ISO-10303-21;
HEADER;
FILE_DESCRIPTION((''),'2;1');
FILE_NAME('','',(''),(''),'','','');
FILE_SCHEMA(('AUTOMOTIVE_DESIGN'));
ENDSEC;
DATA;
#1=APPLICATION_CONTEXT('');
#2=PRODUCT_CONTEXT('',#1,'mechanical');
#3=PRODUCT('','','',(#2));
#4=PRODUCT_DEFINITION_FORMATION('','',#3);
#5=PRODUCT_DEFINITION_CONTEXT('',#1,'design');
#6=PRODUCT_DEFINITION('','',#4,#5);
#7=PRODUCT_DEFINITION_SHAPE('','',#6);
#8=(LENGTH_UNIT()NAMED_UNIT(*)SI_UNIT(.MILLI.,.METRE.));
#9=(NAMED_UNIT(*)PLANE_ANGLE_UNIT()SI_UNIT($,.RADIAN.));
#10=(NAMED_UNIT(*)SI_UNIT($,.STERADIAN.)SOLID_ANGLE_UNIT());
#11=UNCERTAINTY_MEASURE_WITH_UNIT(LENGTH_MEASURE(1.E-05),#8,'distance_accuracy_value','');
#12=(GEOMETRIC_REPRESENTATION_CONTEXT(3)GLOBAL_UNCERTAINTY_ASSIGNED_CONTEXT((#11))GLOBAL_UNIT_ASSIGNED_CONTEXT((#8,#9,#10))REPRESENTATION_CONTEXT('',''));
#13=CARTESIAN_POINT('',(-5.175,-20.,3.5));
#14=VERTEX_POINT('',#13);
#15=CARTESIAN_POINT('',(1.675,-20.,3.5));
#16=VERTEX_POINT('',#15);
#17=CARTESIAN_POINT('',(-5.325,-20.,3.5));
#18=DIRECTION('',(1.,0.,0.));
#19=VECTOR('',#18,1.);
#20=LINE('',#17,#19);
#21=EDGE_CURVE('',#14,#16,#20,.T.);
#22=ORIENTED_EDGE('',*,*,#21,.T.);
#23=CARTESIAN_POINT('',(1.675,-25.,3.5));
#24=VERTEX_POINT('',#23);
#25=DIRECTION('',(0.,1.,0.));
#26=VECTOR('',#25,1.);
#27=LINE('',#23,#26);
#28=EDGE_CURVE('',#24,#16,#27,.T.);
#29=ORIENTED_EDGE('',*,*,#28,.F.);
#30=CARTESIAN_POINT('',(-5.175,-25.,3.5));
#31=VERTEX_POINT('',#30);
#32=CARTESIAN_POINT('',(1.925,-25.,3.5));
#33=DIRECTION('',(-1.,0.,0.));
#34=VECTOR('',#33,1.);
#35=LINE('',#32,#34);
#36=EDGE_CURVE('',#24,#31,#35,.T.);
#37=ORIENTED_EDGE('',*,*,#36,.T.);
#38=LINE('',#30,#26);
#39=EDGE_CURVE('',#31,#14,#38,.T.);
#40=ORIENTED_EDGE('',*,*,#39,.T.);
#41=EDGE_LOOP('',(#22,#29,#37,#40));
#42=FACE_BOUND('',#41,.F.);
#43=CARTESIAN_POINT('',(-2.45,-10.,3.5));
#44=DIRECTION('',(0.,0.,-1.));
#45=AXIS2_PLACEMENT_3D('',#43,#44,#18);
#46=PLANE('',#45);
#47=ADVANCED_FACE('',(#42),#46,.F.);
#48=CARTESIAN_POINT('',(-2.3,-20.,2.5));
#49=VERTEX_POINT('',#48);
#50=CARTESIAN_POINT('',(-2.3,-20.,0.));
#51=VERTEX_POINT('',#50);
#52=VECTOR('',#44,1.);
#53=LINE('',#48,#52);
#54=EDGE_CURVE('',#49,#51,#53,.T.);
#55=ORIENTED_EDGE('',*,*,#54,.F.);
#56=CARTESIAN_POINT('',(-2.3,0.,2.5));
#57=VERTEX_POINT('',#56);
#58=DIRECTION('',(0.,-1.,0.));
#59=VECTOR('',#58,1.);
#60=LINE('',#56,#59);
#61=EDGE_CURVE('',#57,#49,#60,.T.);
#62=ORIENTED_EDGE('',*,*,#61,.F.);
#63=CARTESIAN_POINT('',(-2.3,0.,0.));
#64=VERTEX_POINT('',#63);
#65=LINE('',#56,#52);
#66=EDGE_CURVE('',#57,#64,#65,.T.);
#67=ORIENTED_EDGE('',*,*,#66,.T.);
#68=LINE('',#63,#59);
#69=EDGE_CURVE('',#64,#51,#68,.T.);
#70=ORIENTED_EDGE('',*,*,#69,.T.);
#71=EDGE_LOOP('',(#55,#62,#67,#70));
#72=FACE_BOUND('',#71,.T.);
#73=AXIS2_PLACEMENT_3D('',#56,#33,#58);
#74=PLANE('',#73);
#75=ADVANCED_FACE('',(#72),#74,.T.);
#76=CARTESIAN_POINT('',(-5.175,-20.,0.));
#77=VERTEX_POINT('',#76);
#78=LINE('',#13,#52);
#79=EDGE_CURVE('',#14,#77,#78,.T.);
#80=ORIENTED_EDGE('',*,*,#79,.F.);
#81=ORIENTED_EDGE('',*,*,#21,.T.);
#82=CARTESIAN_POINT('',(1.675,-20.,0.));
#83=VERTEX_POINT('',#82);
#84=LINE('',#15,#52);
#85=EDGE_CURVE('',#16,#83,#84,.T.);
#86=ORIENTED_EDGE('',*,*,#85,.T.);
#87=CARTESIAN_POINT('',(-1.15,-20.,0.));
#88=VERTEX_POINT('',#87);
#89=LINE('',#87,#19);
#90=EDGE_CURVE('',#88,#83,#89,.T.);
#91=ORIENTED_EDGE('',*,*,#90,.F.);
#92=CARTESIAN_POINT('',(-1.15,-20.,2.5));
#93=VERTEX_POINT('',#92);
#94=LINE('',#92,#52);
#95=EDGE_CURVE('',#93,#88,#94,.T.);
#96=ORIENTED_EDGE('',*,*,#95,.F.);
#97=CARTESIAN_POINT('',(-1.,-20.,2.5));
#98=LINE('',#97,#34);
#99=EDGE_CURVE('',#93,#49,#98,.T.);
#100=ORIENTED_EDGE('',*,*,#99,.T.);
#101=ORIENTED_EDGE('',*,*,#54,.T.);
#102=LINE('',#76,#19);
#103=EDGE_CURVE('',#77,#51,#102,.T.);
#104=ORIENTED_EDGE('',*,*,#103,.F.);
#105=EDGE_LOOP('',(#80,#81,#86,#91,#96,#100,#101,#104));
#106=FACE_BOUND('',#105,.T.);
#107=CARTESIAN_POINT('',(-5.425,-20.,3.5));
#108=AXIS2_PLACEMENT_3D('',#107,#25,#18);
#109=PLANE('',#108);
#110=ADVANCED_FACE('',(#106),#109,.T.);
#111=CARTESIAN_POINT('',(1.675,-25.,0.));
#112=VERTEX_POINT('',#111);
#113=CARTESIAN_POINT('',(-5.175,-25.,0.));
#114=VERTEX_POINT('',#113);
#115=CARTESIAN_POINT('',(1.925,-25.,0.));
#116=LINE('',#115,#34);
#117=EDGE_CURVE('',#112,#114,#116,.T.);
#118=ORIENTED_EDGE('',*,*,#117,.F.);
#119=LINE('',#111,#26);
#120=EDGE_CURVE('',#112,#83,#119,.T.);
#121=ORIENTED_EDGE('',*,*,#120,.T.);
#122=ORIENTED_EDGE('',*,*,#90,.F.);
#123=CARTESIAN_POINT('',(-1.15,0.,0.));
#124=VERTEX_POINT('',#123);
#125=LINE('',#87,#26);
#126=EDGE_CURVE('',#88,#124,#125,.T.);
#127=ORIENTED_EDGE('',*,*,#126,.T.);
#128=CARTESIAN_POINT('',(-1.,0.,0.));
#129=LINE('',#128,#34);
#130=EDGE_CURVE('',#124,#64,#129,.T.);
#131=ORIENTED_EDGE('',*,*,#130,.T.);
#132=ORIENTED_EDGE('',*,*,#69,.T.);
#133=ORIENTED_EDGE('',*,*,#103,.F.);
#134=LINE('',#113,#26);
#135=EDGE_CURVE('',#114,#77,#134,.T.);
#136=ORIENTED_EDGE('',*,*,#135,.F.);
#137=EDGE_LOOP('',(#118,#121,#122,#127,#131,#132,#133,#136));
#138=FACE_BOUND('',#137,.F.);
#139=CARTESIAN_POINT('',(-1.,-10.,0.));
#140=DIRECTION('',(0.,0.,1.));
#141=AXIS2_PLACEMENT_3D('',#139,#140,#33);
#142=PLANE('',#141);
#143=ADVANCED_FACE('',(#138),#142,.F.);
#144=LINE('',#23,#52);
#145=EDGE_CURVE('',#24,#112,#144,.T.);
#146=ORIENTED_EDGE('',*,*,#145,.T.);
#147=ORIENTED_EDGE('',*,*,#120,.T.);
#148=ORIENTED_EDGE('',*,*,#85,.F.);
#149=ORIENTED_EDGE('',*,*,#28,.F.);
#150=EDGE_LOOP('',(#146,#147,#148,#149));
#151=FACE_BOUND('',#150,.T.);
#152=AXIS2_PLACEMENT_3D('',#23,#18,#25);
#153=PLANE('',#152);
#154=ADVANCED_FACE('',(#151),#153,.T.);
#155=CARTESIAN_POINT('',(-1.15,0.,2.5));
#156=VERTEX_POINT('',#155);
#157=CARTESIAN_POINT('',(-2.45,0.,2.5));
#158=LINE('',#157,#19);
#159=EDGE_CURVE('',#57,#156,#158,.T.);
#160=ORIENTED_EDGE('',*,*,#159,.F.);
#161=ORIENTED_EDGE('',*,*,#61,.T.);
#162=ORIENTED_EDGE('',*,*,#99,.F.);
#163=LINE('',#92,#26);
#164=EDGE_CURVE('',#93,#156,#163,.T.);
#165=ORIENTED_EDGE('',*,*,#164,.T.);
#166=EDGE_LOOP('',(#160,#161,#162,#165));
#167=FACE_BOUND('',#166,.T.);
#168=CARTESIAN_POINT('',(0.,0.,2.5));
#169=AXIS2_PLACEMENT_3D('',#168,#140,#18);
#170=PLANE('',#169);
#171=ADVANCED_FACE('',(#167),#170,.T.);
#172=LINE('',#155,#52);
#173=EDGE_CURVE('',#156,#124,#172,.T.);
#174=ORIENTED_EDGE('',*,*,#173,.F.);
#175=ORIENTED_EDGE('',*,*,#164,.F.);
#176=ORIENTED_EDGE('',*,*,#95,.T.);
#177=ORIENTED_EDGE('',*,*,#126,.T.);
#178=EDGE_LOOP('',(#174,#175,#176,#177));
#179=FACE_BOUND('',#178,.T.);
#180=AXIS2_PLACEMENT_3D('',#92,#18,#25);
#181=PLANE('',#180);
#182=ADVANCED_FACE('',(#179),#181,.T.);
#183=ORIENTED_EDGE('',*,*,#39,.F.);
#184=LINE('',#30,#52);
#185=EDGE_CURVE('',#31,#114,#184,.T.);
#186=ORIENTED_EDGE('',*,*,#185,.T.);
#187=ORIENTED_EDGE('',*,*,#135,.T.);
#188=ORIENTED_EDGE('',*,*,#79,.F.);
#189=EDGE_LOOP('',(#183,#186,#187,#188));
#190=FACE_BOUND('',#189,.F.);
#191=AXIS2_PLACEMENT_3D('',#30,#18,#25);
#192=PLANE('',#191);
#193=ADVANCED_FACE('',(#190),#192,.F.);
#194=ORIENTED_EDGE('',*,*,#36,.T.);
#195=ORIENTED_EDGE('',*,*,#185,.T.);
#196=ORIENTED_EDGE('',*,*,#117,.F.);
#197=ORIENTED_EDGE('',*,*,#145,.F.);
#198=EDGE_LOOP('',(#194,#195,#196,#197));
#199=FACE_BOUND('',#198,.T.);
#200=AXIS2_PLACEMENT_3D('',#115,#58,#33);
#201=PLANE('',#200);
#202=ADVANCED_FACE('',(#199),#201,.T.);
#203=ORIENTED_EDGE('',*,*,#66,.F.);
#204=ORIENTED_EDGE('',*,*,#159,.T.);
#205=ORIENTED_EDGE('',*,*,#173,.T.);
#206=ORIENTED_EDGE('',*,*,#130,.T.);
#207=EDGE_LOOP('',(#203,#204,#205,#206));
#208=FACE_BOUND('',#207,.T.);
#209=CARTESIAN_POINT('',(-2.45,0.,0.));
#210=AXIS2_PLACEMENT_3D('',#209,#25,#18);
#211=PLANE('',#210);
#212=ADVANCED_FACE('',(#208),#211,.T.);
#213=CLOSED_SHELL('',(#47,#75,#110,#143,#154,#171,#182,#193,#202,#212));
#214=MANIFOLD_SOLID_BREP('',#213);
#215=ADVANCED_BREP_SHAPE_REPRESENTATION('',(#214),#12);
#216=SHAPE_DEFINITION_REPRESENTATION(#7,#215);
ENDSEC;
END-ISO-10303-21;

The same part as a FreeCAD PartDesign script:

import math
import FreeCAD as App
import Part
import Sketcher

V = App.Vector
Q = App.Units.Quantity

doc = App.newDocument("Part")
body = doc.addObject("PartDesign::Body", "Body")

# Sketch on XY plane
sketch1 = doc.addObject("Sketcher::SketchObject", "Sketch")
body.addObject(sketch1)
sketch1.AttachmentSupport = (doc.XY_Plane, [""])
sketch1.MapMode = "FlatFace"
sketch1.addGeometry([
    Part.LineSegment(V(0, -20, 0), V(0, 0, 0)),  # 0
    Part.LineSegment(V(0, 0, 0), V(-3.5, 0, 0)),  # 1
    Part.LineSegment(V(-3.5, 0, 0), V(-3.5, -20, 0)),  # 2
    Part.LineSegment(V(-3.5, -20, 0), V(-5.4, -20, 0)),  # 3
    Part.LineSegment(V(-5.4, -20, 0), V(-5.4, -25, 0)),  # 4
    Part.LineSegment(V(-5.4, -25, 0), V(1.9, -25, 0)),  # 5
    Part.LineSegment(V(1.9, -25, 0), V(1.9, -20, 0)),  # 6
    Part.LineSegment(V(1.9, -20, 0), V(0, -20, 0)),  # 7
], False)
sketch1.addConstraint([
    Sketcher.Constraint("Coincident", 0, 2, 1, 1),
    Sketcher.Constraint("Coincident", 1, 2, 2, 1),
    Sketcher.Constraint("Coincident", 2, 2, 3, 1),
    Sketcher.Constraint("Coincident", 3, 2, 4, 1),
    Sketcher.Constraint("Coincident", 4, 2, 5, 1),
    Sketcher.Constraint("Coincident", 5, 2, 6, 1),
    Sketcher.Constraint("Coincident", 6, 2, 7, 1),
    Sketcher.Constraint("Coincident", 7, 2, 0, 1),
    Sketcher.Constraint("Vertical", 0),
    Sketcher.Constraint("Horizontal", 1),
    Sketcher.Constraint("Vertical", 2),
    Sketcher.Constraint("Horizontal", 3),
    Sketcher.Constraint("Vertical", 4),
    Sketcher.Constraint("Horizontal", 5),
    Sketcher.Constraint("Vertical", 6),
    Sketcher.Constraint("Horizontal", 7),
    Sketcher.Constraint("Coincident", 0, 2, -1, 1),
    Sketcher.Constraint("Horizontal", 3, 2, 6, 2),
    Sketcher.Constraint("DistanceY", 0, 1, 0, 2, Q("20 mm")),
    Sketcher.Constraint("DistanceY", 4, 2, 4, 1, Q("5 mm")),
    Sketcher.Constraint("DistanceX", 1, 2, 1, 1, Q("3.45 mm")),
    Sketcher.Constraint("DistanceX", 5, 1, 5, 2, Q("7.35 mm")),
    Sketcher.Constraint("DistanceX", 3, 2, 3, 1, Q("1.975 mm")),
])
pad1 = doc.addObject("PartDesign::Pad", "Pad")
body.addObject(pad1)
pad1.Profile = sketch1
pad1.Length = 3.5

# Sketch on XY plane
sketch2 = doc.addObject("Sketcher::SketchObject", "Sketch001")
body.addObject(sketch2)
sketch2.AttachmentSupport = (doc.XY_Plane, [""])
sketch2.MapMode = "FlatFace"
sketch2.addGeometry([
    Part.LineSegment(V(2, 0, 0), V(-5.5, 0, 0)),  # 0
    Part.LineSegment(V(-5.5, 0, 0), V(-5.5, 4, 0)),  # 1
    Part.ArcOfCircle(Part.Circle(V(-1.7, 4, 0), V(0, 0, 1), 3.8), math.radians(0), math.radians(180)),  # 2
    Part.LineSegment(V(2, 4, 0), V(2, 0, 0)),  # 3
    Part.Circle(V(-1.7, 4, 0), V(0, 0, 1), 1.6),  # 4
], False)
sketch2.addConstraint([
    Sketcher.Constraint("Coincident", 0, 2, 1, 1),
    Sketcher.Constraint("Tangent", 1, 2, 2, 2),
    Sketcher.Constraint("Tangent", 2, 1, 3, 1),
    Sketcher.Constraint("Coincident", 3, 2, 0, 1),
    Sketcher.Constraint("Horizontal", 0),
    Sketcher.Constraint("Vertical", 1),
    Sketcher.Constraint("Vertical", 3),
    Sketcher.Constraint("Coincident", 4, 3, 2, 3),
    Sketcher.Constraint("PointOnObject", 0, 2, -1),
    Sketcher.Constraint("Diameter", 4, Q("3.1 mm")),
    Sketcher.Constraint("DistanceY", 1, 1, 1, 2, Q("4 mm")),
    Sketcher.Constraint("Radius", 2, Q("3.75 mm")),
    Sketcher.Constraint("DistanceX", -1, 1, 2, 1, Q("2.025 mm")),
])
pad2 = doc.addObject("PartDesign::Pad", "Pad001")
body.addObject(pad2)
pad2.Profile = sketch2
pad2.Length = 3.5

# Sketch on XY plane
sketch3 = doc.addObject("Sketcher::SketchObject", "Sketch002")
body.addObject(sketch3)
sketch3.AttachmentSupport = (doc.XY_Plane, [""])
sketch3.MapMode = "FlatFace"
sketch3.addGeometry([
    Part.LineSegment(V(0, -20, 0), V(-1, -20, 0)),  # 0
    Part.LineSegment(V(-1, -20, 0), V(-1, -10, 0)),  # 1
    Part.LineSegment(V(-1, -10, 0), V(-2.5, -10, 0)),  # 2
    Part.LineSegment(V(-2.5, -10, 0), V(-2.5, -20, 0)),  # 3
    Part.LineSegment(V(-2.5, -20, 0), V(-3.5, -20, 0)),  # 4
    Part.LineSegment(V(-3.5, -20, 0), V(-3.5, 0, 0)),  # 5
    Part.LineSegment(V(-3.5, 0, 0), V(-5.5, 0, 0)),  # 6
    Part.LineSegment(V(-5.5, 0, 0), V(-5.5, 4, 0)),  # 7
    Part.ArcOfCircle(Part.Circle(V(-1.7, 4, 0), V(0, 0, 1), 3.7), math.radians(0), math.radians(180)),  # 8
    Part.LineSegment(V(2, 4, 0), V(2, 0, 0)),  # 9
    Part.LineSegment(V(2, 0, 0), V(0, 0, 0)),  # 10
    Part.LineSegment(V(0, 0, 0), V(0, -20, 0)),  # 11
    Part.Circle(V(-1.7, 4, 0), V(0, 0, 1), 1.6),  # 12
], False)
sketch3.addConstraint([
    Sketcher.Constraint("Coincident", 0, 2, 1, 1),
    Sketcher.Constraint("Coincident", 1, 2, 2, 1),
    Sketcher.Constraint("Coincident", 2, 2, 3, 1),
    Sketcher.Constraint("Coincident", 3, 2, 4, 1),
    Sketcher.Constraint("Coincident", 4, 2, 5, 1),
    Sketcher.Constraint("Coincident", 5, 2, 6, 1),
    Sketcher.Constraint("Coincident", 6, 2, 7, 1),
    Sketcher.Constraint("Tangent", 7, 2, 8, 2),
    Sketcher.Constraint("Tangent", 8, 1, 9, 1),
    Sketcher.Constraint("Coincident", 9, 2, 10, 1),
    Sketcher.Constraint("Coincident", 10, 2, 11, 1),
    Sketcher.Constraint("Coincident", 11, 2, 0, 1),
    Sketcher.Constraint("Horizontal", 0),
    Sketcher.Constraint("Vertical", 1),
    Sketcher.Constraint("Horizontal", 2),
    Sketcher.Constraint("Vertical", 3),
    Sketcher.Constraint("Horizontal", 4),
    Sketcher.Constraint("Vertical", 5),
    Sketcher.Constraint("Horizontal", 6),
    Sketcher.Constraint("Vertical", 7),
    Sketcher.Constraint("Vertical", 9),
    Sketcher.Constraint("Horizontal", 10),
    Sketcher.Constraint("Vertical", 11),
    Sketcher.Constraint("Coincident", 10, 2, -1, 1),
    Sketcher.Constraint("Coincident", 12, 3, 8, 3),
    Sketcher.Constraint("PointOnObject", 5, 2, -1),
    Sketcher.Constraint("Horizontal", 0, 2, 3, 2),
    Sketcher.Constraint("Equal", 0, 4),
    Sketcher.Constraint("Equal", 6, 10),
    Sketcher.Constraint("DistanceX", 0, 2, 0, 1, Q("1 mm")),
    Sketcher.Constraint("Diameter", 12, Q("3.1 mm")),
    Sketcher.Constraint("DistanceY", 1, 1, 1, 2, Q("10 mm")),
    Sketcher.Constraint("DistanceY", 5, 1, 5, 2, Q("20 mm")),
    Sketcher.Constraint("DistanceY", 7, 1, 7, 2, Q("4 mm")),
    Sketcher.Constraint("Radius", 8, Q("3.75 mm")),
    Sketcher.Constraint("DistanceX", 2, 2, 2, 1, Q("1.45 mm")),
])
pocket1 = doc.addObject("PartDesign::Pocket", "Pocket")
body.addObject(pocket1)
pocket1.Profile = sketch3
pocket1.Length = 3.5
pocket1.Reversed = True

# Sketch on XY plane
sketch4 = doc.addObject("Sketcher::SketchObject", "Sketch003")
body.addObject(sketch4)
sketch4.AttachmentSupport = (doc.XY_Plane, [""])
sketch4.MapMode = "FlatFace"
sketch4.AttachmentOffset = App.Placement(V(0, 0, 3.5), App.Rotation())
sketch4.addGeometry([
    Part.LineSegment(V(-2.5, -20, 0), V(-1, -20, 0)),
    Part.LineSegment(V(-1, -20, 0), V(-1, -10, 0)),
    Part.LineSegment(V(-1, -10, 0), V(-2.5, -10, 0)),
    Part.LineSegment(V(-2.5, -10, 0), V(-2.5, -20, 0)),
], False)
sketch4.addConstraint([
    Sketcher.Constraint("Coincident", 0, 2, 1, 1),
    Sketcher.Constraint("Coincident", 1, 2, 2, 1),
    Sketcher.Constraint("Coincident", 2, 2, 3, 1),
    Sketcher.Constraint("Coincident", 3, 2, 0, 1),
    Sketcher.Constraint("Horizontal", 0),
    Sketcher.Constraint("Vertical", 1),
    Sketcher.Constraint("Horizontal", 2),
    Sketcher.Constraint("Vertical", 3),
    Sketcher.Constraint("DistanceY", 1, 1, 1, 2, Q("10 mm")),
    Sketcher.Constraint("DistanceX", 0, 2, -1, 1, Q("1 mm")),
    Sketcher.Constraint("DistanceY", 0, 2, -1, 1, Q("20 mm")),
    Sketcher.Constraint("DistanceX", 0, 1, 0, 2, Q("1.45 mm")),
])
pocket2 = doc.addObject("PartDesign::Pocket", "Pocket001")
body.addObject(pocket2)
pocket2.Profile = sketch4
pocket2.Length = 1.75

# Sketch on XZ plane
sketch5 = doc.addObject("Sketcher::SketchObject", "Sketch004")
body.addObject(sketch5)
sketch5.AttachmentSupport = (doc.XZ_Plane, [""])
sketch5.MapMode = "FlatFace"
sketch5.AttachmentOffset = App.Placement(V(0, 0, 20), App.Rotation())
sketch5.addGeometry([
    Part.LineSegment(V(1.9, 0, 0), V(-5.4, 0, 0)),  # 0
    Part.LineSegment(V(-5.4, 0, 0), V(-5.4, 3.5, 0)),  # 1
    Part.LineSegment(V(-5.4, 3.5, 0), V(1.9, 3.5, 0)),  # 2
    Part.LineSegment(V(1.9, 3.5, 0), V(1.9, 0, 0)),  # 3
    Part.LineSegment(V(1.4, 0.5, 0), V(1.4, 3, 0)),  # 4
    Part.LineSegment(V(1.4, 3, 0), V(-4.9, 3, 0)),  # 5
    Part.LineSegment(V(-4.9, 3, 0), V(-4.9, 0.5, 0)),  # 6
    Part.LineSegment(V(-4.9, 0.5, 0), V(1.4, 0.5, 0)),  # 7
], False)
sketch5.addConstraint([
    Sketcher.Constraint("Coincident", 0, 2, 1, 1),
    Sketcher.Constraint("Coincident", 1, 2, 2, 1),
    Sketcher.Constraint("Coincident", 2, 2, 3, 1),
    Sketcher.Constraint("Coincident", 3, 2, 0, 1),
    Sketcher.Constraint("Coincident", 4, 2, 5, 1),
    Sketcher.Constraint("Coincident", 5, 2, 6, 1),
    Sketcher.Constraint("Coincident", 6, 2, 7, 1),
    Sketcher.Constraint("Coincident", 7, 2, 4, 1),
    Sketcher.Constraint("Horizontal", 0),
    Sketcher.Constraint("Vertical", 1),
    Sketcher.Constraint("Horizontal", 2),
    Sketcher.Constraint("Vertical", 3),
    Sketcher.Constraint("Vertical", 4),
    Sketcher.Constraint("Horizontal", 5),
    Sketcher.Constraint("Vertical", 6),
    Sketcher.Constraint("Horizontal", 7),
    Sketcher.Constraint("PointOnObject", 0, 2, -1),
    Sketcher.Constraint("DistanceY", -1, 1, 6, 2, Q("0.5 mm")),
    Sketcher.Constraint("DistanceX", 4, 2, 2, 2, Q("0.5 mm")),
    Sketcher.Constraint("DistanceY", 4, 2, 2, 2, Q("0.5 mm")),
    Sketcher.Constraint("DistanceX", 1, 2, 5, 2, Q("0.5 mm")),
    Sketcher.Constraint("DistanceY", 1, 1, 1, 2, Q("3.5 mm")),
    Sketcher.Constraint("DistanceX", 0, 2, 0, 1, Q("7.35 mm")),
    Sketcher.Constraint("DistanceX", 0, 2, -1, 1, Q("5.425 mm")),
])
pocket3 = doc.addObject("PartDesign::Pocket", "Pocket002")
body.addObject(pocket3)
pocket3.Profile = sketch5
pocket3.Type = "TwoLengths"
pocket3.Length = 10
pocket3.Length2 = 2

# Sketch on XZ plane
sketch6 = doc.addObject("Sketcher::SketchObject", "Sketch005")
body.addObject(sketch6)
sketch6.AttachmentSupport = (doc.XZ_Plane, [""])
sketch6.MapMode = "FlatFace"
sketch6.AttachmentOffset = App.Placement(V(0, 0, 22), App.Rotation())
sketch6.addGeometry([
    Part.LineSegment(V(1.9, 0, 0), V(-5.4, 0, 0)),  # 0
    Part.LineSegment(V(-5.4, 0, 0), V(-5.4, 3.5, 0)),  # 1
    Part.LineSegment(V(-5.4, 3.5, 0), V(1.9, 3.5, 0)),  # 2
    Part.LineSegment(V(1.9, 3.5, 0), V(1.9, 0, 0)),  # 3
    Part.LineSegment(V(-4.9, 0.5, 0), V(1.4, 0.5, 0)),  # 4
    Part.LineSegment(V(1.4, 0.5, 0), V(1.4, 3, 0)),  # 5
    Part.LineSegment(V(1.4, 3, 0), V(-4.9, 3, 0)),  # 6
    Part.LineSegment(V(-4.9, 3, 0), V(-4.9, 0.5, 0)),  # 7
], False)
sketch6.addConstraint([
    Sketcher.Constraint("Coincident", 0, 2, 1, 1),
    Sketcher.Constraint("Coincident", 1, 2, 2, 1),
    Sketcher.Constraint("Coincident", 2, 2, 3, 1),
    Sketcher.Constraint("Coincident", 3, 2, 0, 1),
    Sketcher.Constraint("Coincident", 4, 2, 5, 1),
    Sketcher.Constraint("Coincident", 5, 2, 6, 1),
    Sketcher.Constraint("Coincident", 6, 2, 7, 1),
    Sketcher.Constraint("Coincident", 7, 2, 4, 1),
    Sketcher.Constraint("Horizontal", 0),
    Sketcher.Constraint("Vertical", 1),
    Sketcher.Constraint("Horizontal", 2),
    Sketcher.Constraint("Vertical", 3),
    Sketcher.Constraint("Horizontal", 4),
    Sketcher.Constraint("Vertical", 5),
    Sketcher.Constraint("Horizontal", 6),
    Sketcher.Constraint("Vertical", 7),
    Sketcher.Constraint("PointOnObject", 0, 2, -1),
    Sketcher.Constraint("DistanceY", 1, 1, 1, 2, Q("3.5 mm")),
    Sketcher.Constraint("DistanceY", 5, 1, 5, 2, Q("2.5 mm")),
    Sketcher.Constraint("DistanceY", -1, 1, 5, 2, Q("3 mm")),
    Sketcher.Constraint("DistanceX", 0, 2, 0, 1, Q("7.35 mm")),
    Sketcher.Constraint("DistanceX", 4, 1, 4, 2, Q("6.35 mm")),
    Sketcher.Constraint("DistanceX", 4, 2, 3, 2, Q("0.5 mm")),
    Sketcher.Constraint("DistanceX", 0, 2, -1, 1, Q("5.425 mm")),
])
pad3 = doc.addObject("PartDesign::Pad", "Pad002")
body.addObject(pad3)
pad3.Profile = sketch6
pad3.Length = 2
pad3.Reversed = True

# Sketch on XZ plane
sketch7 = doc.addObject("Sketcher::SketchObject", "Sketch006")
body.addObject(sketch7)
sketch7.AttachmentSupport = (doc.XZ_Plane, [""])
sketch7.MapMode = "FlatFace"
sketch7.AttachmentOffset = App.Placement(V(0, 0, 20), App.Rotation())
sketch7.addGeometry([
    Part.LineSegment(V(-1, 0, 0), V(-2.5, 0, 0)),
    Part.LineSegment(V(-2.5, 0, 0), V(-2.5, 0.5, 0)),
    Part.LineSegment(V(-2.5, 0.5, 0), V(-1, 0.5, 0)),
    Part.LineSegment(V(-1, 0.5, 0), V(-1, 0, 0)),
], False)
sketch7.addConstraint([
    Sketcher.Constraint("Coincident", 0, 2, 1, 1),
    Sketcher.Constraint("Coincident", 1, 2, 2, 1),
    Sketcher.Constraint("Coincident", 2, 2, 3, 1),
    Sketcher.Constraint("Coincident", 3, 2, 0, 1),
    Sketcher.Constraint("Horizontal", 0),
    Sketcher.Constraint("Vertical", 1),
    Sketcher.Constraint("Horizontal", 2),
    Sketcher.Constraint("Vertical", 3),
    Sketcher.Constraint("PointOnObject", 0, 2, -1),
    Sketcher.Constraint("DistanceY", 1, 1, 1, 2, Q("0.5 mm")),
    Sketcher.Constraint("DistanceX", 2, 2, -1, 1, Q("1 mm")),
    Sketcher.Constraint("DistanceX", 0, 2, 0, 1, Q("1.45 mm")),
])
pad4 = doc.addObject("PartDesign::Pad", "Pad003")
body.addObject(pad4)
pad4.Profile = sketch7
pad4.Length = 10
pad4.Reversed = True

# Sketch on XY plane
sketch8 = doc.addObject("Sketcher::SketchObject", "Sketch007")
body.addObject(sketch8)
sketch8.AttachmentSupport = (doc.XY_Plane, [""])
sketch8.MapMode = "FlatFace"
sketch8.AttachmentOffset = App.Placement(V(0, 0, 1.75), App.Rotation())
sketch8.addGeometry([
    Part.LineSegment(V(-2.5, -20, 0), V(-1, -20, 0)),
    Part.LineSegment(V(-1, -20, 0), V(-1, -10, 0)),
    Part.LineSegment(V(-1, -10, 0), V(-2.5, -10, 0)),
    Part.LineSegment(V(-2.5, -10, 0), V(-2.5, -20, 0)),
], False)
sketch8.addConstraint([
    Sketcher.Constraint("Coincident", 0, 2, 1, 1),
    Sketcher.Constraint("Coincident", 1, 2, 2, 1),
    Sketcher.Constraint("Coincident", 2, 2, 3, 1),
    Sketcher.Constraint("Coincident", 3, 2, 0, 1),
    Sketcher.Constraint("Horizontal", 0),
    Sketcher.Constraint("Vertical", 1),
    Sketcher.Constraint("Horizontal", 2),
    Sketcher.Constraint("Vertical", 3),
    Sketcher.Constraint("DistanceY", 1, 1, 1, 2, Q("10 mm")),
    Sketcher.Constraint("DistanceX", 0, 2, -1, 1, Q("1 mm")),
    Sketcher.Constraint("DistanceY", 0, 2, -1, 1, Q("20 mm")),
    Sketcher.Constraint("DistanceX", 0, 1, 0, 2, Q("1.45 mm")),
])
pad5 = doc.addObject("PartDesign::Pad", "Pad004")
body.addObject(pad5)
pad5.Profile = sketch8
pad5.Length = 1.75

# Sketch on XZ plane
sketch9 = doc.addObject("Sketcher::SketchObject", "Sketch008")
body.addObject(sketch9)
sketch9.AttachmentSupport = (doc.XZ_Plane, [""])
sketch9.MapMode = "FlatFace"
sketch9.AttachmentOffset = App.Placement(V(0, 0, 10), App.Rotation())
sketch9.addGeometry([
    Part.LineSegment(V(-1, 0, 0), V(-2.5, 0, 0)),
    Part.LineSegment(V(-2.5, 0, 0), V(-2.5, 3.5, 0)),
    Part.LineSegment(V(-2.5, 3.5, 0), V(-1, 3.5, 0)),
    Part.LineSegment(V(-1, 3.5, 0), V(-1, 0, 0)),
], False)
sketch9.addConstraint([
    Sketcher.Constraint("Coincident", 0, 2, 1, 1),
    Sketcher.Constraint("Coincident", 1, 2, 2, 1),
    Sketcher.Constraint("Coincident", 2, 2, 3, 1),
    Sketcher.Constraint("Coincident", 3, 2, 0, 1),
    Sketcher.Constraint("Horizontal", 0),
    Sketcher.Constraint("Vertical", 1),
    Sketcher.Constraint("Horizontal", 2),
    Sketcher.Constraint("Vertical", 3),
    Sketcher.Constraint("PointOnObject", 0, 2, -1),
    Sketcher.Constraint("DistanceY", 1, 1, 1, 2, Q("3.5 mm")),
    Sketcher.Constraint("DistanceX", 2, 2, -1, 1, Q("1 mm")),
    Sketcher.Constraint("DistanceX", 0, 2, 0, 1, Q("1.45 mm")),
])
pad6 = doc.addObject("PartDesign::Pad", "Pad005")
body.addObject(pad6)
pad6.Profile = sketch9
pad6.Length = 10
pad6.Reversed = True

# Sketch on XY plane
sketch10 = doc.addObject("Sketcher::SketchObject", "Sketch009")
body.addObject(sketch10)
sketch10.AttachmentSupport = (doc.XY_Plane, [""])
sketch10.MapMode = "FlatFace"
sketch10.AttachmentOffset = App.Placement(V(0, 0, 3.5), App.Rotation())
sketch10.addGeometry([
    Part.LineSegment(V(-5.33, -20, 0), V(-5.42, -20, 0)),  # 0
    Part.LineSegment(V(-5.42, -20, 0), V(-5.42, -25, 0)),  # 1
    Part.LineSegment(V(-5.42, -25, 0), V(-5.33, -25, 0)),  # 2
    Part.LineSegment(V(-5.33, -25, 0), V(-5.33, -20, 0)),  # 3
    Part.LineSegment(V(1.82, -20, 0), V(1.82, -25, 0)),  # 4
    Part.LineSegment(V(1.82, -25, 0), V(1.93, -25, 0)),  # 5
    Part.LineSegment(V(1.93, -25, 0), V(1.93, -20, 0)),  # 6
    Part.LineSegment(V(1.93, -20, 0), V(1.82, -20, 0)),  # 7
], False)
sketch10.addConstraint([
    Sketcher.Constraint("Coincident", 0, 2, 1, 1),
    Sketcher.Constraint("Coincident", 1, 2, 2, 1),
    Sketcher.Constraint("Coincident", 2, 2, 3, 1),
    Sketcher.Constraint("Coincident", 3, 2, 0, 1),
    Sketcher.Constraint("Coincident", 4, 2, 5, 1),
    Sketcher.Constraint("Coincident", 5, 2, 6, 1),
    Sketcher.Constraint("Coincident", 6, 2, 7, 1),
    Sketcher.Constraint("Coincident", 7, 2, 4, 1),
    Sketcher.Constraint("Horizontal", 0),
    Sketcher.Constraint("Vertical", 1),
    Sketcher.Constraint("Horizontal", 2),
    Sketcher.Constraint("Vertical", 3),
    Sketcher.Constraint("Vertical", 4),
    Sketcher.Constraint("Horizontal", 5),
    Sketcher.Constraint("Vertical", 6),
    Sketcher.Constraint("Horizontal", 7),
    Sketcher.Constraint("Horizontal", 2, 2, 4, 2),
    Sketcher.Constraint("Horizontal", 3, 2, 6, 2),
    Sketcher.Constraint("Equal", 2, 5),
    Sketcher.Constraint("DistanceX", 0, 2, 0, 1, Q("0.1 mm")),
    Sketcher.Constraint("DistanceY", 1, 2, 1, 1, Q("5 mm")),
    Sketcher.Constraint("DistanceY", 0, 2, -1, 1, Q("20 mm")),
    Sketcher.Constraint("DistanceX", 2, 2, 4, 2, Q("7.15 mm")),
    Sketcher.Constraint("DistanceX", 0, 2, -1, 1, Q("5.425 mm")),
])
pocket4 = doc.addObject("PartDesign::Pocket", "Pocket003")
body.addObject(pocket4)
pocket4.Profile = sketch10
pocket4.Length = 3.5

# Sketch on XY plane
sketch11 = doc.addObject("Sketcher::SketchObject", "Sketch010")
body.addObject(sketch11)
sketch11.AttachmentSupport = (doc.XY_Plane, [""])
sketch11.MapMode = "FlatFace"
sketch11.AttachmentOffset = App.Placement(V(0, 0, 3.5), App.Rotation())
sketch11.addGeometry([
    Part.LineSegment(V(-2.5, -20, 0), V(-1, -20, 0)),
    Part.LineSegment(V(-1, -20, 0), V(-1, 0, 0)),
    Part.LineSegment(V(-1, 0, 0), V(-2.5, 0, 0)),
    Part.LineSegment(V(-2.5, 0, 0), V(-2.5, -20, 0)),
], False)
sketch11.addConstraint([
    Sketcher.Constraint("Coincident", 0, 2, 1, 1),
    Sketcher.Constraint("Coincident", 1, 2, 2, 1),
    Sketcher.Constraint("Coincident", 2, 2, 3, 1),
    Sketcher.Constraint("Coincident", 3, 2, 0, 1),
    Sketcher.Constraint("Horizontal", 0),
    Sketcher.Constraint("Vertical", 1),
    Sketcher.Constraint("Horizontal", 2),
    Sketcher.Constraint("Vertical", 3),
    Sketcher.Constraint("PointOnObject", 1, 2, -1),
    Sketcher.Constraint("DistanceY", 1, 1, 1, 2, Q("20 mm")),
    Sketcher.Constraint("DistanceX", 0, 2, -1, 1, Q("1 mm")),
    Sketcher.Constraint("DistanceX", 0, 1, 0, 2, Q("1.45 mm")),
])
pocket5 = doc.addObject("PartDesign::Pocket", "Pocket004")
body.addObject(pocket5)
pocket5.Profile = sketch11
pocket5.Length = 1

# Sketch on XY plane
sketch12 = doc.addObject("Sketcher::SketchObject", "Sketch011")
body.addObject(sketch12)
sketch12.AttachmentSupport = (doc.XY_Plane, [""])
sketch12.MapMode = "FlatFace"
sketch12.AttachmentOffset = App.Placement(V(0, 0, 3.5), App.Rotation())
sketch12.addGeometry([
    Part.LineSegment(V(1.82, -25, 0), V(1.82, -20, 0)),  # 0
    Part.LineSegment(V(1.82, -20, 0), V(1.68, -20, 0)),  # 1
    Part.LineSegment(V(1.68, -20, 0), V(1.68, -25, 0)),  # 2
    Part.LineSegment(V(1.68, -25, 0), V(1.82, -25, 0)),  # 3
    Part.LineSegment(V(-5.17, -25, 0), V(-5.17, -20, 0)),  # 4
    Part.LineSegment(V(-5.17, -20, 0), V(-5.33, -20, 0)),  # 5
    Part.LineSegment(V(-5.33, -20, 0), V(-5.33, -25, 0)),  # 6
    Part.LineSegment(V(-5.33, -25, 0), V(-5.17, -25, 0)),  # 7
], False)
sketch12.addConstraint([
    Sketcher.Constraint("Coincident", 0, 2, 1, 1),
    Sketcher.Constraint("Coincident", 1, 2, 2, 1),
    Sketcher.Constraint("Coincident", 2, 2, 3, 1),
    Sketcher.Constraint("Coincident", 3, 2, 0, 1),
    Sketcher.Constraint("Coincident", 4, 2, 5, 1),
    Sketcher.Constraint("Coincident", 5, 2, 6, 1),
    Sketcher.Constraint("Coincident", 6, 2, 7, 1),
    Sketcher.Constraint("Coincident", 7, 2, 4, 1),
    Sketcher.Constraint("Vertical", 0),
    Sketcher.Constraint("Horizontal", 1),
    Sketcher.Constraint("Vertical", 2),
    Sketcher.Constraint("Horizontal", 3),
    Sketcher.Constraint("Vertical", 4),
    Sketcher.Constraint("Horizontal", 5),
    Sketcher.Constraint("Vertical", 6),
    Sketcher.Constraint("Horizontal", 7),
    Sketcher.Constraint("Horizontal", 1, 2, 4, 2),
    Sketcher.Constraint("Horizontal", 3, 2, 6, 2),
    Sketcher.Constraint("Equal", 3, 5),
    Sketcher.Constraint("DistanceX", 1, 2, 1, 1, Q("0.15 mm")),
    Sketcher.Constraint("DistanceY", 0, 1, 0, 2, Q("5 mm")),
    Sketcher.Constraint("DistanceY", 0, 2, -1, 1, Q("20 mm")),
    Sketcher.Constraint("DistanceX", 4, 2, 0, 2, Q("7 mm")),
    Sketcher.Constraint("DistanceX", -1, 1, 0, 2, Q("1.825 mm")),
])
pocket6 = doc.addObject("PartDesign::Pocket", "Pocket005")
body.addObject(pocket6)
pocket6.Profile = sketch12
pocket6.Length = 3.5

# Sketch on XY plane
sketch13 = doc.addObject("Sketcher::SketchObject", "Sketch012")
body.addObject(sketch13)
sketch13.AttachmentSupport = (doc.XY_Plane, [""])
sketch13.MapMode = "FlatFace"
sketch13.AttachmentOffset = App.Placement(V(0, 0, 2.5), App.Rotation())
sketch13.addGeometry([
    Part.LineSegment(V(-2.3, 0, 0), V(-2.45, 0, 0)),  # 0
    Part.LineSegment(V(-2.45, 0, 0), V(-2.45, -20, 0)),  # 1
    Part.LineSegment(V(-2.45, -20, 0), V(-2.3, -20, 0)),  # 2
    Part.LineSegment(V(-2.3, -20, 0), V(-2.3, 0, 0)),  # 3
    Part.LineSegment(V(-1, 0, 0), V(-1.15, 0, 0)),  # 4
    Part.LineSegment(V(-1.15, 0, 0), V(-1.15, -20, 0)),  # 5
    Part.LineSegment(V(-1.15, -20, 0), V(-1, -20, 0)),  # 6
    Part.LineSegment(V(-1, -20, 0), V(-1, 0, 0)),  # 7
], False)
sketch13.addConstraint([
    Sketcher.Constraint("Coincident", 0, 2, 1, 1),
    Sketcher.Constraint("Coincident", 1, 2, 2, 1),
    Sketcher.Constraint("Coincident", 2, 2, 3, 1),
    Sketcher.Constraint("Coincident", 3, 2, 0, 1),
    Sketcher.Constraint("Coincident", 4, 2, 5, 1),
    Sketcher.Constraint("Coincident", 5, 2, 6, 1),
    Sketcher.Constraint("Coincident", 6, 2, 7, 1),
    Sketcher.Constraint("Coincident", 7, 2, 4, 1),
    Sketcher.Constraint("Horizontal", 0),
    Sketcher.Constraint("Vertical", 1),
    Sketcher.Constraint("Horizontal", 2),
    Sketcher.Constraint("Vertical", 3),
    Sketcher.Constraint("Horizontal", 4),
    Sketcher.Constraint("Vertical", 5),
    Sketcher.Constraint("Horizontal", 6),
    Sketcher.Constraint("Vertical", 7),
    Sketcher.Constraint("PointOnObject", 0, 2, -1),
    Sketcher.Constraint("PointOnObject", 4, 2, -1),
    Sketcher.Constraint("Horizontal", 2, 2, 5, 2),
    Sketcher.Constraint("Equal", 2, 4),
    Sketcher.Constraint("DistanceX", 0, 2, 0, 1, Q("0.15 mm")),
    Sketcher.Constraint("DistanceY", 1, 2, 1, 1, Q("20 mm")),
    Sketcher.Constraint("DistanceX", 6, 2, -1, 1, Q("1 mm")),
    Sketcher.Constraint("DistanceX", 2, 2, -1, 1, Q("2.3 mm")),
])
pocket7 = doc.addObject("PartDesign::Pocket", "Pocket006")
body.addObject(pocket7)
pocket7.Profile = sketch13
pocket7.Length = 2.5

doc.recompute()
